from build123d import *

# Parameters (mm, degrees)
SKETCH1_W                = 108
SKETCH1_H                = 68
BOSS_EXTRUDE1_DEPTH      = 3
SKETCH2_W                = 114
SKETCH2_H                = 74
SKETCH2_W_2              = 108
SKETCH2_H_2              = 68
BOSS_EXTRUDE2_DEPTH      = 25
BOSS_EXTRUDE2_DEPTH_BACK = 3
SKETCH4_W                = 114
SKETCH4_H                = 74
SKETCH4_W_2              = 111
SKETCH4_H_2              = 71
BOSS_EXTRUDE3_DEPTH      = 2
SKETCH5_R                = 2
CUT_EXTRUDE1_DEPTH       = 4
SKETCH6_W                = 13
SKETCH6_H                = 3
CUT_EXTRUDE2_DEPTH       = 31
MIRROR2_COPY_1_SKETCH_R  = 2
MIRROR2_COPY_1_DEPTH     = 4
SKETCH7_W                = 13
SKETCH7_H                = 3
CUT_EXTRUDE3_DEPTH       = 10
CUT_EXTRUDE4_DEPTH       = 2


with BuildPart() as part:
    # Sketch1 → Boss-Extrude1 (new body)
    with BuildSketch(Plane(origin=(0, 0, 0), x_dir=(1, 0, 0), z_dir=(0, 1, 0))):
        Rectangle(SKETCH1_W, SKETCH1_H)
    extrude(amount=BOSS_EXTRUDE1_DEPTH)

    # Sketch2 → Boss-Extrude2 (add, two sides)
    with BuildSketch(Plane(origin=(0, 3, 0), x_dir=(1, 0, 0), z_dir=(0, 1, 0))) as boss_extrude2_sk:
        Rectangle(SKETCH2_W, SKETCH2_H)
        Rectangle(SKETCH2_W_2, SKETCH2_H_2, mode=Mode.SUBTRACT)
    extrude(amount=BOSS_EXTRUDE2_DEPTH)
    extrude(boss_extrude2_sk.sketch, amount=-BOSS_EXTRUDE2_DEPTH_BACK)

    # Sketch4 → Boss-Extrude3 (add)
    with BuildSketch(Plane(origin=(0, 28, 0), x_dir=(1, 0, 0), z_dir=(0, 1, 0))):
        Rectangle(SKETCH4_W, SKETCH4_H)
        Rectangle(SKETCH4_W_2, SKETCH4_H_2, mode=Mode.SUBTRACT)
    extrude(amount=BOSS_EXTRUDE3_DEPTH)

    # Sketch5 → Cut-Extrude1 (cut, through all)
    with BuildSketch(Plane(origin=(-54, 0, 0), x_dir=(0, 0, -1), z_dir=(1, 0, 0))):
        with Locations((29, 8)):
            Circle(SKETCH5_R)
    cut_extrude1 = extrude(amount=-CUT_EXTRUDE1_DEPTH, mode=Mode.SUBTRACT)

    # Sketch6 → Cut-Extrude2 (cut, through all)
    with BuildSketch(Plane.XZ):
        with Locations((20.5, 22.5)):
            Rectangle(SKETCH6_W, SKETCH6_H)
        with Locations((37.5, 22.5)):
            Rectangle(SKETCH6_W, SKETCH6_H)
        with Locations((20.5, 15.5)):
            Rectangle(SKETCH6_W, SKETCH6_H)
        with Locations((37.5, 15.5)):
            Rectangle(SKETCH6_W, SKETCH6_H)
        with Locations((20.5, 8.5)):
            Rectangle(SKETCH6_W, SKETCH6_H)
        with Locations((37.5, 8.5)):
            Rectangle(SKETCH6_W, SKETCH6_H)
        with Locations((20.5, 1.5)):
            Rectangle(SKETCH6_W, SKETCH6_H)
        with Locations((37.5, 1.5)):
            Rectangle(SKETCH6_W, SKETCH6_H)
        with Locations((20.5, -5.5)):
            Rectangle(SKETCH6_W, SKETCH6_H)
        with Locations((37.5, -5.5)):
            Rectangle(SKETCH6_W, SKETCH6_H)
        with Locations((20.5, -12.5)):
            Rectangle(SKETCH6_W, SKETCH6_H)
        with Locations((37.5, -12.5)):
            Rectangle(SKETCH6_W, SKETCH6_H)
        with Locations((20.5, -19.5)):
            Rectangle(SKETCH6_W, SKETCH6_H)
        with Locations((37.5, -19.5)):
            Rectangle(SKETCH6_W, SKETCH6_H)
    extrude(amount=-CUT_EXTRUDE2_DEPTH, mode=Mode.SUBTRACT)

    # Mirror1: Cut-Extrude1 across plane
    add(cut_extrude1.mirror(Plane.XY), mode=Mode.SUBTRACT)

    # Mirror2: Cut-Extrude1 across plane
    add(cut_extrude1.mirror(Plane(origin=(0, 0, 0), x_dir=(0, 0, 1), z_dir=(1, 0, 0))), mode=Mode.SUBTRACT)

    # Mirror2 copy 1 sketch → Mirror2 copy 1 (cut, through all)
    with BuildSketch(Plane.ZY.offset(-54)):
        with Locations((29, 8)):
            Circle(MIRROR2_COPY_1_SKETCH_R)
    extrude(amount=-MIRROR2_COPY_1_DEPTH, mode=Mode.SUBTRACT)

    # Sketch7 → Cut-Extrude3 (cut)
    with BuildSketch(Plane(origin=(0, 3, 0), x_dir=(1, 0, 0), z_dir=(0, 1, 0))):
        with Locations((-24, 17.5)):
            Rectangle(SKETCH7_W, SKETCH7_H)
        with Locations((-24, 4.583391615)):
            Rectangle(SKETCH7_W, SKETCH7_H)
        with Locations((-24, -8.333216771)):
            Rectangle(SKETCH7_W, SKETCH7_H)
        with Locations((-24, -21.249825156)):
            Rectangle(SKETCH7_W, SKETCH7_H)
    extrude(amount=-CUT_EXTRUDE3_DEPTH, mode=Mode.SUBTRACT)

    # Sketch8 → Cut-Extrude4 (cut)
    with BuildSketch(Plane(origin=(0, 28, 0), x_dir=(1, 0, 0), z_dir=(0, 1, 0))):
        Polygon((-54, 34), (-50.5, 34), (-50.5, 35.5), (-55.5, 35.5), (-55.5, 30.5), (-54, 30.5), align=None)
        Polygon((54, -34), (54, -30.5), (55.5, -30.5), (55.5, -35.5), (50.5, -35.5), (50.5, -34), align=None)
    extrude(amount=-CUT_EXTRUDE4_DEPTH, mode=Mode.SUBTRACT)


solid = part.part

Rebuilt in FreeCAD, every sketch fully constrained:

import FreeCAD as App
import Part
import Sketcher

V = App.Vector
Q = App.Units.Quantity


def add_polygon(sketch, points):
    """Adds a closed chain of lines whose ends are joined by coincident constraints."""
    first, n = sketch.GeometryCount, len(points)
    for a, b in zip(points, points[1:] + points[:1]):
        sketch.addGeometry(Part.LineSegment(App.Vector(*a, 0), App.Vector(*b, 0)), False)
    for i in range(n):
        sketch.addConstraint(Sketcher.Constraint("Coincident", first + i, 2, first + (i + 1) % n, 1))

doc = App.newDocument("Part")
params = doc.addObject("Spreadsheet::Sheet", "Params")
for row, (alias, value) in enumerate([
    ("sketch1_width", "108 mm"),
    ("sketch1_height", "68 mm"),
    ("pad1_length", "3 mm"),
    ("sketch2_width", "114 mm"),
    ("sketch2_width2", "108 mm"),
    ("sketch2_height", "74 mm"),
    ("sketch2_height2", "68 mm"),
    ("pad2_length", "25 mm"),
    ("pad2_length2", "3 mm"),
    ("sketch3_width", "114 mm"),
    ("sketch3_width2", "111 mm"),
    ("sketch3_height", "74 mm"),
    ("sketch3_height2", "71 mm"),
    ("pad3_length", "2 mm"),
    ("sketch4_diameter", "4 mm"),
    ("sketch5_width", "13 mm"),
    ("sketch5_height", "3 mm"),
    ("sketch6_diameter", "4 mm"),
    ("sketch7_width", "13 mm"),
    ("sketch7_height", "3 mm"),
    ("pocket4_length", "10 mm"),
    ("sketch8_width", "5 mm"),
    ("sketch8_width2", "3.5 mm"),
    ("pocket5_length", "2 mm"),
], start=1):
    params.set(f"A{row}", alias)
    params.set(f"B{row}", "=" + value)
    params.setAlias(f"B{row}", alias)

body = doc.addObject("PartDesign::Body", "Body")

# Sketch on XZ plane
sketch1 = body.newObject("Sketcher::SketchObject", "Sketch")
sketch1.AttachmentSupport = (doc.getObject("XZ_Plane"), [""])
sketch1.MapMode = "FlatFace"
add_polygon(sketch1, [(-54, -34), (-54, 34), (54, 34), (54, -34)])  # lines 0-3
sketch1.addConstraint(Sketcher.Constraint("Vertical", 0))
sketch1.addConstraint(Sketcher.Constraint("Horizontal", 1))
sketch1.addConstraint(Sketcher.Constraint("Vertical", 2))
sketch1.addConstraint(Sketcher.Constraint("Horizontal", 3))
sketch1.addConstraint(Sketcher.Constraint("Symmetric", 0, 2, 2, 2, -1, 1))
sketch1.addConstraint(Sketcher.Constraint("DistanceX", 1, 1, 1, 2, Q("108 mm")))
sketch1.addConstraint(Sketcher.Constraint("DistanceY", 0, 1, 0, 2, Q("68 mm")))
sketch1.setExpression("Constraints[9]", "Params.sketch1_width")
sketch1.setExpression("Constraints[10]", "Params.sketch1_height")
pad1 = body.newObject("PartDesign::Pad", "Pad")
pad1.Profile = sketch1
pad1.setExpression("Length", "Params.pad1_length")
pad1.Reversed = True

# Sketch on XZ plane
sketch2 = body.newObject("Sketcher::SketchObject", "Sketch001")
sketch2.AttachmentSupport = (doc.getObject("XZ_Plane"), [""])
sketch2.MapMode = "FlatFace"
sketch2.AttachmentOffset = App.Placement(V(0, 0, -3), App.Rotation())
add_polygon(sketch2, [(-57, -37), (-57, 37), (57, 37), (57, -37)])  # lines 0-3
add_polygon(sketch2, [(54, 34), (-54, 34), (-54, -34), (54, -34)])  # lines 4-7
sketch2.addConstraint(Sketcher.Constraint("Vertical", 0))
sketch2.addConstraint(Sketcher.Constraint("Horizontal", 1))
sketch2.addConstraint(Sketcher.Constraint("Vertical", 2))
sketch2.addConstraint(Sketcher.Constraint("Horizontal", 3))
sketch2.addConstraint(Sketcher.Constraint("Horizontal", 4))
sketch2.addConstraint(Sketcher.Constraint("Vertical", 5))
sketch2.addConstraint(Sketcher.Constraint("Horizontal", 6))
sketch2.addConstraint(Sketcher.Constraint("Vertical", 7))
sketch2.addConstraint(Sketcher.Constraint("Symmetric", 0, 2, 2, 2, -1, 1))
sketch2.addConstraint(Sketcher.Constraint("Symmetric", 4, 2, 6, 2, -1, 1))
sketch2.addConstraint(Sketcher.Constraint("DistanceX", 1, 1, 1, 2, Q("114 mm")))
sketch2.addConstraint(Sketcher.Constraint("DistanceX", 4, 2, 4, 1, Q("108 mm")))
sketch2.addConstraint(Sketcher.Constraint("DistanceY", 0, 1, 0, 2, Q("74 mm")))
sketch2.addConstraint(Sketcher.Constraint("DistanceY", 5, 2, 5, 1, Q("68 mm")))
sketch2.setExpression("Constraints[18]", "Params.sketch2_width")
sketch2.setExpression("Constraints[19]", "Params.sketch2_width2")
sketch2.setExpression("Constraints[20]", "Params.sketch2_height")
sketch2.setExpression("Constraints[21]", "Params.sketch2_height2")
pad2 = body.newObject("PartDesign::Pad", "Pad001")
pad2.Profile = sketch2
pad2.Type = "TwoLengths"
pad2.setExpression("Length", "Params.pad2_length")
pad2.setExpression("Length2", "Params.pad2_length2")
pad2.Reversed = True

# Sketch on XZ plane
sketch3 = body.newObject("Sketcher::SketchObject", "Sketch002")
sketch3.AttachmentSupport = (doc.getObject("XZ_Plane"), [""])
sketch3.MapMode = "FlatFace"
sketch3.AttachmentOffset = App.Placement(V(0, 0, -28), App.Rotation())
add_polygon(sketch3, [(-57, -37), (-57, 37), (57, 37), (57, -37)])  # lines 0-3
add_polygon(sketch3, [(56, 36), (-56, 36), (-56, -36), (56, -36)])  # lines 4-7
sketch3.addConstraint(Sketcher.Constraint("Vertical", 0))
sketch3.addConstraint(Sketcher.Constraint("Horizontal", 1))
sketch3.addConstraint(Sketcher.Constraint("Vertical", 2))
sketch3.addConstraint(Sketcher.Constraint("Horizontal", 3))
sketch3.addConstraint(Sketcher.Constraint("Horizontal", 4))
sketch3.addConstraint(Sketcher.Constraint("Vertical", 5))
sketch3.addConstraint(Sketcher.Constraint("Horizontal", 6))
sketch3.addConstraint(Sketcher.Constraint("Vertical", 7))
sketch3.addConstraint(Sketcher.Constraint("Symmetric", 0, 2, 2, 2, -1, 1))
sketch3.addConstraint(Sketcher.Constraint("Symmetric", 4, 2, 6, 2, -1, 1))
sketch3.addConstraint(Sketcher.Constraint("DistanceX", 1, 1, 1, 2, Q("114 mm")))
sketch3.addConstraint(Sketcher.Constraint("DistanceX", 4, 2, 4, 1, Q("111 mm")))
sketch3.addConstraint(Sketcher.Constraint("DistanceY", 0, 1, 0, 2, Q("74 mm")))
sketch3.addConstraint(Sketcher.Constraint("DistanceY", 5, 2, 5, 1, Q("71 mm")))
sketch3.setExpression("Constraints[18]", "Params.sketch3_width")
sketch3.setExpression("Constraints[19]", "Params.sketch3_width2")
sketch3.setExpression("Constraints[20]", "Params.sketch3_height")
sketch3.setExpression("Constraints[21]", "Params.sketch3_height2")
pad3 = body.newObject("PartDesign::Pad", "Pad002")
pad3.Profile = sketch3
pad3.setExpression("Length", "Params.pad3_length")
pad3.Reversed = True

# Sketch on YZ plane
sketch4 = body.newObject("Sketcher::SketchObject", "Sketch003")
sketch4.AttachmentSupport = (doc.getObject("YZ_Plane"), [""])
sketch4.MapMode = "FlatFace"
sketch4.AttachmentOffset = App.Placement(V(0, 0, -54), App.Rotation())
sketch4.addGeometry(Part.Circle(V(8, -29, 0), V(0, 0, 1), 2), False)
sketch4.addConstraint(Sketcher.Constraint("Diameter", 0, Q("4 mm")))
sketch4.addConstraint(Sketcher.Constraint("DistanceX", -1, 1, 0, 3, Q("8 mm")))
sketch4.addConstraint(Sketcher.Constraint("DistanceY", 0, 3, -1, 1, Q("29 mm")))
sketch4.setExpression("Constraints[0]", "Params.sketch4_diameter")
pocket1 = body.newObject("PartDesign::Pocket", "Pocket")
pocket1.Profile = sketch4
pocket1.Type = "ThroughAll"

# Sketch on XZ plane
sketch5 = body.newObject("Sketcher::SketchObject", "Sketch004")
sketch5.AttachmentSupport = (doc.getObject("XZ_Plane"), [""])
sketch5.MapMode = "FlatFace"
add_polygon(sketch5, [(14, 24), (14, 21), (27, 21), (27, 24)])  # lines 0-3
add_polygon(sketch5, [(31, 24), (31, 21), (44, 21), (44, 24)])  # lines 4-7
add_polygon(sketch5, [(14, 17), (14, 14), (27, 14), (27, 17)])  # lines 8-11
add_polygon(sketch5, [(31, 17), (31, 14), (44, 14), (44, 17)])  # lines 12-15
add_polygon(sketch5, [(14, 10), (14, 7), (27, 7), (27, 10)])  # lines 16-19
add_polygon(sketch5, [(31, 10), (31, 7), (44, 7), (44, 10)])  # lines 20-23
add_polygon(sketch5, [(14, 3), (14, 0), (27, 0), (27, 3)])  # lines 24-27
add_polygon(sketch5, [(31, 3), (31, 0), (44, 0), (44, 3)])  # lines 28-31
add_polygon(sketch5, [(14, -4), (14, -7), (27, -7), (27, -4)])  # lines 32-35
add_polygon(sketch5, [(31, -4), (31, -7), (44, -7), (44, -4)])  # lines 36-39
add_polygon(sketch5, [(14, -11), (14, -14), (27, -14), (27, -11)])  # lines 40-43
add_polygon(sketch5, [(31, -11), (31, -14), (44, -14), (44, -11)])  # lines 44-47
add_polygon(sketch5, [(14, -18), (14, -21), (27, -21), (27, -18)])  # lines 48-51
add_polygon(sketch5, [(31, -18), (31, -21), (44, -21), (44, -18)])  # lines 52-55
sketch5.addConstraint(Sketcher.Constraint("Vertical", 0))
sketch5.addConstraint(Sketcher.Constraint("Horizontal", 1))
sketch5.addConstraint(Sketcher.Constraint("Vertical", 2))
sketch5.addConstraint(Sketcher.Constraint("Horizontal", 3))
sketch5.addConstraint(Sketcher.Constraint("Vertical", 4))
sketch5.addConstraint(Sketcher.Constraint("Horizontal", 5))
sketch5.addConstraint(Sketcher.Constraint("Vertical", 6))
sketch5.addConstraint(Sketcher.Constraint("Horizontal", 7))
sketch5.addConstraint(Sketcher.Constraint("Vertical", 8))
sketch5.addConstraint(Sketcher.Constraint("Horizontal", 9))
sketch5.addConstraint(Sketcher.Constraint("Vertical", 10))
sketch5.addConstraint(Sketcher.Constraint("Horizontal", 11))
sketch5.addConstraint(Sketcher.Constraint("Vertical", 12))
sketch5.addConstraint(Sketcher.Constraint("Horizontal", 13))
sketch5.addConstraint(Sketcher.Constraint("Vertical", 14))
sketch5.addConstraint(Sketcher.Constraint("Horizontal", 15))
sketch5.addConstraint(Sketcher.Constraint("Vertical", 16))
sketch5.addConstraint(Sketcher.Constraint("Horizontal", 17))
sketch5.addConstraint(Sketcher.Constraint("Vertical", 18))
sketch5.addConstraint(Sketcher.Constraint("Horizontal", 19))
sketch5.addConstraint(Sketcher.Constraint("Vertical", 20))
sketch5.addConstraint(Sketcher.Constraint("Horizontal", 21))
sketch5.addConstraint(Sketcher.Constraint("Vertical", 22))
sketch5.addConstraint(Sketcher.Constraint("Horizontal", 23))
sketch5.addConstraint(Sketcher.Constraint("Vertical", 24))
sketch5.addConstraint(Sketcher.Constraint("Horizontal", 25))
sketch5.addConstraint(Sketcher.Constraint("Vertical", 26))
sketch5.addConstraint(Sketcher.Constraint("Horizontal", 27))
sketch5.addConstraint(Sketcher.Constraint("Vertical", 28))
sketch5.addConstraint(Sketcher.Constraint("Horizontal", 29))
sketch5.addConstraint(Sketcher.Constraint("Vertical", 30))
sketch5.addConstraint(Sketcher.Constraint("Horizontal", 31))
sketch5.addConstraint(Sketcher.Constraint("Vertical", 32))
sketch5.addConstraint(Sketcher.Constraint("Horizontal", 33))
sketch5.addConstraint(Sketcher.Constraint("Vertical", 34))
sketch5.addConstraint(Sketcher.Constraint("Horizontal", 35))
sketch5.addConstraint(Sketcher.Constraint("Vertical", 36))
sketch5.addConstraint(Sketcher.Constraint("Horizontal", 37))
sketch5.addConstraint(Sketcher.Constraint("Vertical", 38))
sketch5.addConstraint(Sketcher.Constraint("Horizontal", 39))
sketch5.addConstraint(Sketcher.Constraint("Vertical", 40))
sketch5.addConstraint(Sketcher.Constraint("Horizontal", 41))
sketch5.addConstraint(Sketcher.Constraint("Vertical", 42))
sketch5.addConstraint(Sketcher.Constraint("Horizontal", 43))
sketch5.addConstraint(Sketcher.Constraint("Vertical", 44))
sketch5.addConstraint(Sketcher.Constraint("Horizontal", 45))
sketch5.addConstraint(Sketcher.Constraint("Vertical", 46))
sketch5.addConstraint(Sketcher.Constraint("Horizontal", 47))
sketch5.addConstraint(Sketcher.Constraint("Vertical", 48))
sketch5.addConstraint(Sketcher.Constraint("Horizontal", 49))
sketch5.addConstraint(Sketcher.Constraint("Vertical", 50))
sketch5.addConstraint(Sketcher.Constraint("Horizontal", 51))
sketch5.addConstraint(Sketcher.Constraint("Vertical", 52))
sketch5.addConstraint(Sketcher.Constraint("Horizontal", 53))
sketch5.addConstraint(Sketcher.Constraint("Vertical", 54))
sketch5.addConstraint(Sketcher.Constraint("Horizontal", 55))
sketch5.addConstraint(Sketcher.Constraint("Symmetric", 16, 2, 32, 2, -1))
sketch5.addConstraint(Sketcher.Constraint("Symmetric", 20, 2, 36, 2, -1))
sketch5.addConstraint(Sketcher.Constraint("Symmetric", 8, 2, 40, 2, -1))
sketch5.addConstraint(Sketcher.Constraint("Symmetric", 12, 2, 44, 2, -1))
sketch5.addConstraint(Sketcher.Constraint("Symmetric", 0, 2, 48, 2, -1))
sketch5.addConstraint(Sketcher.Constraint("Symmetric", 4, 2, 52, 2, -1))
sketch5.addConstraint(Sketcher.Constraint("PointOnObject", 24, 2, -1))
sketch5.addConstraint(Sketcher.Constraint("PointOnObject", 28, 2, -1))
sketch5.addConstraint(Sketcher.Constraint("Horizontal", 1, 2, 4, 2))
sketch5.addConstraint(Sketcher.Constraint("Horizontal", 3, 2, 6, 2))
sketch5.addConstraint(Sketcher.Constraint("Horizontal", 9, 2, 12, 2))
sketch5.addConstraint(Sketcher.Constraint("Horizontal", 11, 2, 14, 2))
sketch5.addConstraint(Sketcher.Constraint("Horizontal", 17, 2, 20, 2))
sketch5.addConstraint(Sketcher.Constraint("Horizontal", 19, 2, 22, 2))
sketch5.addConstraint(Sketcher.Constraint("Horizontal", 27, 2, 30, 2))
sketch5.addConstraint(Sketcher.Constraint("Horizontal", 35, 2, 38, 2))
sketch5.addConstraint(Sketcher.Constraint("Horizontal", 43, 2, 46, 2))
sketch5.addConstraint(Sketcher.Constraint("Horizontal", 51, 2, 54, 2))
sketch5.addConstraint(Sketcher.Constraint("Vertical", 3, 2, 8, 2))
sketch5.addConstraint(Sketcher.Constraint("Vertical", 2, 2, 9, 2))
sketch5.addConstraint(Sketcher.Constraint("Vertical", 7, 2, 12, 2))
sketch5.addConstraint(Sketcher.Constraint("Vertical", 6, 2, 13, 2))
sketch5.addConstraint(Sketcher.Constraint("Vertical", 11, 2, 16, 2))
sketch5.addConstraint(Sketcher.Constraint("Vertical", 10, 2, 17, 2))
sketch5.addConstraint(Sketcher.Constraint("Vertical", 15, 2, 20, 2))
sketch5.addConstraint(Sketcher.Constraint("Vertical", 14, 2, 21, 2))
sketch5.addConstraint(Sketcher.Constraint("Vertical", 19, 2, 24, 2))
sketch5.addConstraint(Sketcher.Constraint("Vertical", 18, 2, 25, 2))
sketch5.addConstraint(Sketcher.Constraint("Vertical", 23, 2, 28, 2))
sketch5.addConstraint(Sketcher.Constraint("Vertical", 22, 2, 29, 2))
sketch5.addConstraint(Sketcher.Constraint("Vertical", 26, 2, 33, 2))
sketch5.addConstraint(Sketcher.Constraint("Vertical", 30, 2, 37, 2))
sketch5.addConstraint(Sketcher.Constraint("Vertical", 34, 2, 41, 2))
sketch5.addConstraint(Sketcher.Constraint("Vertical", 38, 2, 45, 2))
sketch5.addConstraint(Sketcher.Constraint("Vertical", 42, 2, 49, 2))
sketch5.addConstraint(Sketcher.Constraint("Vertical", 46, 2, 53, 2))
sketch5.addConstraint(Sketcher.Constraint("Equal", 3, 5))
sketch5.addConstraint(Sketcher.Constraint("Equal", 6, 8))
sketch5.addConstraint(Sketcher.Constraint("Equal", 14, 16))
sketch5.addConstraint(Sketcher.Constraint("Equal", 22, 24))
sketch5.addConstraint(Sketcher.Constraint("Equal", 30, 32))
sketch5.addConstraint(Sketcher.Constraint("Equal", 38, 40))
sketch5.addConstraint(Sketcher.Constraint("Equal", 46, 48))
sketch5.addConstraint(Sketcher.Constraint("DistanceX", 1, 1, 1, 2, Q("13 mm")))
sketch5.addConstraint(Sketcher.Constraint("DistanceY", 0, 2, 0, 1, Q("3 mm")))
sketch5.addConstraint(Sketcher.Constraint("DistanceX", -1, 1, 0, 2, Q("14 mm")))
sketch5.addConstraint(Sketcher.Constraint("DistanceY", -1, 1, 0, 2, Q("21 mm")))
sketch5.addConstraint(Sketcher.Constraint("DistanceX", -1, 1, 4, 2, Q("31 mm")))
sketch5.addConstraint(Sketcher.Constraint("DistanceY", -1, 1, 8, 2, Q("14 mm")))
sketch5.addConstraint(Sketcher.Constraint("DistanceY", -1, 1, 16, 2, Q("7 mm")))
sketch5.setExpression("Constraints[155]", "Params.sketch5_width")
sketch5.setExpression("Constraints[156]", "Params.sketch5_height")
pocket2 = body.newObject("PartDesign::Pocket", "Pocket001")
pocket2.Profile = sketch5
pocket2.Type = "ThroughAll"
doc.recompute()

mirrored = body.newObject("PartDesign::Mirrored", "Mirrored")
mirrored.Originals = [pocket1]
mirrored.MirrorPlane = (doc.getObject("XY_Plane"), [""])
body.Tip = mirrored
doc.recompute()

mirrored2 = body.newObject("PartDesign::Mirrored", "Mirrored001")
mirrored2.Originals = [pocket1]
mirrored2.MirrorPlane = (doc.getObject("YZ_Plane"), [""])
body.Tip = mirrored2

# Sketch on YZ plane
sketch6 = body.newObject("Sketcher::SketchObject", "Sketch005")
sketch6.AttachmentSupport = (doc.getObject("YZ_Plane"), [""])
sketch6.MapMode = "FlatFace"
sketch6.AttachmentOffset = App.Placement(V(0, 0, 54), App.Rotation())
sketch6.addGeometry(Part.Circle(V(8, 29, 0), V(0, 0, 1), 2), False)
sketch6.addConstraint(Sketcher.Constraint("Diameter", 0, Q("4 mm")))
sketch6.addConstraint(Sketcher.Constraint("DistanceX", -1, 1, 0, 3, Q("8 mm")))
sketch6.addConstraint(Sketcher.Constraint("DistanceY", -1, 1, 0, 3, Q("29 mm")))
sketch6.setExpression("Constraints[0]", "Params.sketch6_diameter")
pocket3 = body.newObject("PartDesign::Pocket", "Pocket002")
pocket3.Profile = sketch6
pocket3.Type = "ThroughAll"
pocket3.Reversed = True

# Sketch on XZ plane
sketch7 = body.newObject("Sketcher::SketchObject", "Sketch006")
sketch7.AttachmentSupport = (doc.getObject("XZ_Plane"), [""])
sketch7.MapMode = "FlatFace"
sketch7.AttachmentOffset = App.Placement(V(0, 0, -3), App.Rotation())
add_polygon(sketch7, [(-30.5, -19), (-30.5, -16), (-17.5, -16), (-17.5, -19)])  # lines 0-3
add_polygon(sketch7, [(-30.5, -6.1), (-30.5, -3.1), (-17.5, -3.1), (-17.5, -6.1)])  # lines 4-7
add_polygon(sketch7, [(-30.5, 6.8), (-30.5, 9.8), (-17.5, 9.8), (-17.5, 6.8)])  # lines 8-11
add_polygon(sketch7, [(-30.5, 19.7), (-30.5, 22.7), (-17.5, 22.7), (-17.5, 19.7)])  # lines 12-15
sketch7.addConstraint(Sketcher.Constraint("Vertical", 0))
sketch7.addConstraint(Sketcher.Constraint("Horizontal", 1))
sketch7.addConstraint(Sketcher.Constraint("Vertical", 2))
sketch7.addConstraint(Sketcher.Constraint("Horizontal", 3))
sketch7.addConstraint(Sketcher.Constraint("Vertical", 4))
sketch7.addConstraint(Sketcher.Constraint("Horizontal", 5))
sketch7.addConstraint(Sketcher.Constraint("Vertical", 6))
sketch7.addConstraint(Sketcher.Constraint("Horizontal", 7))
sketch7.addConstraint(Sketcher.Constraint("Vertical", 8))
sketch7.addConstraint(Sketcher.Constraint("Horizontal", 9))
sketch7.addConstraint(Sketcher.Constraint("Vertical", 10))
sketch7.addConstraint(Sketcher.Constraint("Horizontal", 11))
sketch7.addConstraint(Sketcher.Constraint("Vertical", 12))
sketch7.addConstraint(Sketcher.Constraint("Horizontal", 13))
sketch7.addConstraint(Sketcher.Constraint("Vertical", 14))
sketch7.addConstraint(Sketcher.Constraint("Horizontal", 15))
sketch7.addConstraint(Sketcher.Constraint("Vertical", 3, 2, 4, 2))
sketch7.addConstraint(Sketcher.Constraint("Vertical", 2, 2, 5, 2))
sketch7.addConstraint(Sketcher.Constraint("Vertical", 7, 2, 8, 2))
sketch7.addConstraint(Sketcher.Constraint("Vertical", 6, 2, 9, 2))
sketch7.addConstraint(Sketcher.Constraint("Vertical", 11, 2, 12, 2))
sketch7.addConstraint(Sketcher.Constraint("Vertical", 10, 2, 13, 2))
sketch7.addConstraint(Sketcher.Constraint("Equal", 2, 4))
sketch7.addConstraint(Sketcher.Constraint("Equal", 6, 8))
sketch7.addConstraint(Sketcher.Constraint("Equal", 10, 12))
sketch7.addConstraint(Sketcher.Constraint("DistanceX", 1, 1, 1, 2, Q("13 mm")))
sketch7.addConstraint(Sketcher.Constraint("DistanceY", 0, 1, 0, 2, Q("3 mm")))
sketch7.addConstraint(Sketcher.Constraint("DistanceY", 0, 2, -1, 1, Q("16 mm")))
sketch7.addConstraint(Sketcher.Constraint("DistanceX", 0, 2, -1, 1, Q("30.5 mm")))
sketch7.addConstraint(Sketcher.Constraint("DistanceY", 4, 2, -1, 1, Q("3.083392 mm")))
sketch7.addConstraint(Sketcher.Constraint("DistanceY", 4, 2, 8, 2, Q("12.916608 mm")))
sketch7.addConstraint(Sketcher.Constraint("DistanceY", 8, 2, 12, 2, Q("12.916608 mm")))
sketch7.setExpression("Constraints[41]", "Params.sketch7_width")
sketch7.setExpression("Constraints[42]", "Params.sketch7_height")
pocket4 = body.newObject("PartDesign::Pocket", "Pocket003")
pocket4.Profile = sketch7
pocket4.setExpression("Length", "Params.pocket4_length")
pocket4.Reversed = True

# Sketch on XZ plane
sketch8 = body.newObject("Sketcher::SketchObject", "Sketch007")
sketch8.AttachmentSupport = (doc.getObject("XZ_Plane"), [""])
sketch8.MapMode = "FlatFace"
sketch8.AttachmentOffset = App.Placement(V(0, 0, -28), App.Rotation())
add_polygon(sketch8, [(-54, -34), (-50.5, -34), (-50.5, -35.5), (-55.5, -35.5), (-55.5, -30.5), (-54, -30.5)])  # lines 0-5
add_polygon(sketch8, [(54, 30.5), (54, 34), (50.5, 34), (50.5, 35.5), (55.5, 35.5), (55.5, 30.5)])  # lines 6-11
sketch8.addConstraint(Sketcher.Constraint("Horizontal", 0))
sketch8.addConstraint(Sketcher.Constraint("Vertical", 1))
sketch8.addConstraint(Sketcher.Constraint("Horizontal", 2))
sketch8.addConstraint(Sketcher.Constraint("Vertical", 3))
sketch8.addConstraint(Sketcher.Constraint("Horizontal", 4))
sketch8.addConstraint(Sketcher.Constraint("Vertical", 5))
sketch8.addConstraint(Sketcher.Constraint("Vertical", 6))
sketch8.addConstraint(Sketcher.Constraint("Horizontal", 7))
sketch8.addConstraint(Sketcher.Constraint("Vertical", 8))
sketch8.addConstraint(Sketcher.Constraint("Horizontal", 9))
sketch8.addConstraint(Sketcher.Constraint("Vertical", 10))
sketch8.addConstraint(Sketcher.Constraint("Horizontal", 11))
sketch8.addConstraint(Sketcher.Constraint("Symmetric", 5, 2, 6, 2, -1, 1))
sketch8.addConstraint(Sketcher.Constraint("Symmetric", 1, 2, 8, 2, -1, 1))
sketch8.addConstraint(Sketcher.Constraint("Symmetric", 3, 2, 10, 2, -1, 1))
sketch8.addConstraint(Sketcher.Constraint("Equal", 11, 1))
sketch8.addConstraint(Sketcher.Constraint("Equal", 9, 3))
sketch8.addConstraint(Sketcher.Constraint("DistanceX", 2, 2, 2, 1, Q("5 mm")))
sketch8.addConstraint(Sketcher.Constraint("DistanceX", 0, 1, 0, 2, Q("3.5 mm")))
sketch8.addConstraint(Sketcher.Constraint("DistanceY", 0, 2, -1, 1, Q("34 mm")))
sketch8.addConstraint(Sketcher.Constraint("DistanceX", 4, 2, -1, 1, Q("54 mm")))
sketch8.setExpression("Constraints[29]", "Params.sketch8_width")
sketch8.setExpression("Constraints[30]", "Params.sketch8_width2")
pocket5 = body.newObject("PartDesign::Pocket", "Pocket004")
pocket5.Profile = sketch8
pocket5.setExpression("Length", "Params.pocket5_length")
pocket5.Reversed = True

doc.recompute()
